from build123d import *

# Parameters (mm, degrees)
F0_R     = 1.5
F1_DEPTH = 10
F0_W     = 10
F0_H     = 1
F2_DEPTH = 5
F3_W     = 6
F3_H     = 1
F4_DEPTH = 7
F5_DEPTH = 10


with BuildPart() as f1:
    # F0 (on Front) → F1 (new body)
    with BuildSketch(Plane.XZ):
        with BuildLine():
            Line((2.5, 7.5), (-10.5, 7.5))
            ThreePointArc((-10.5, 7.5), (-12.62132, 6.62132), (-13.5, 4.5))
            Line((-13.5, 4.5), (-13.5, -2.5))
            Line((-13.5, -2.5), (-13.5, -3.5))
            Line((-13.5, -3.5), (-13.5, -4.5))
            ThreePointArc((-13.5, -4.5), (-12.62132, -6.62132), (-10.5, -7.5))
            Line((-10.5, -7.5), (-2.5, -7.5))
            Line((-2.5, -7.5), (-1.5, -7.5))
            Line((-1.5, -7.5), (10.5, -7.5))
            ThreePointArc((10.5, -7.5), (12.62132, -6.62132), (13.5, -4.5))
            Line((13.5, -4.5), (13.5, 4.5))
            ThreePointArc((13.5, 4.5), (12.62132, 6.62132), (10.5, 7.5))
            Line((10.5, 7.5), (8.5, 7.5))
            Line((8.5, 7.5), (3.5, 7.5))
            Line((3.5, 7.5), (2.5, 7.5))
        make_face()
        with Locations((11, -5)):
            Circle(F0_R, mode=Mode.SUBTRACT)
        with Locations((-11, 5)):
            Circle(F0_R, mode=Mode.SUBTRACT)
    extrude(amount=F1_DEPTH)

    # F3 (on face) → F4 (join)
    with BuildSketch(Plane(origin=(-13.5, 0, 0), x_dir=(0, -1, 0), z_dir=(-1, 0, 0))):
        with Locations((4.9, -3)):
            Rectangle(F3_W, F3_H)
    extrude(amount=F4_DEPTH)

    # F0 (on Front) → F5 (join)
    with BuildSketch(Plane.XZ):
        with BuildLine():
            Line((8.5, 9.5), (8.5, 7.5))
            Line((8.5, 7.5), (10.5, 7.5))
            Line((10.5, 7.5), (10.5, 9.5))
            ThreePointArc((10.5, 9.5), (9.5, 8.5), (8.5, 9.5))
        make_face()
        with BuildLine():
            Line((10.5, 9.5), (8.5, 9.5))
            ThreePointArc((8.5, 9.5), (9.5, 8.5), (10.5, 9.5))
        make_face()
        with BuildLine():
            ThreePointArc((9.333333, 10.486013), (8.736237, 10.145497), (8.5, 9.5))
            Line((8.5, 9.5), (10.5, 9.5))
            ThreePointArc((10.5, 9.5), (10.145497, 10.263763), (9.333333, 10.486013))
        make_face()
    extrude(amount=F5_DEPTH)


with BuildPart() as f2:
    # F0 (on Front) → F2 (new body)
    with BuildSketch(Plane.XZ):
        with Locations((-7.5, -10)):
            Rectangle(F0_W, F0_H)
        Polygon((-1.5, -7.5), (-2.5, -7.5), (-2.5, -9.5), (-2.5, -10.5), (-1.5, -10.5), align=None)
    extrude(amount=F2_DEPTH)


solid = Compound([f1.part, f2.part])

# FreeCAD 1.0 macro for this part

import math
import FreeCAD as App
import Part
import Sketcher

V = App.Vector
Q = App.Units.Quantity


def add_polygon(sketch, points):
    """Adds a closed chain of lines whose ends are joined by coincident constraints."""
    first, n = sketch.GeometryCount, len(points)
    for a, b in zip(points, points[1:] + points[:1]):
        sketch.addGeometry(Part.LineSegment(App.Vector(*a, 0), App.Vector(*b, 0)), False)
    for i in range(n):
        sketch.addConstraint(Sketcher.Constraint("Coincident", first + i, 2, first + (i + 1) % n, 1))

doc = App.newDocument("Part")
params = doc.addObject("Spreadsheet::Sheet", "Params")
for row, (alias, value) in enumerate([
    ("sketch1_diameter", "3 mm"),
    ("sketch1_radius", "3.000001 mm"),
    ("sketch1_width", "21 mm"),
    ("sketch1_height", "9 mm"),
    ("pad1_length", "10 mm"),
    ("sketch2_width", "6 mm"),
    ("sketch2_height", "1 mm"),
    ("pad2_length", "7 mm"),
    ("sketch3_radius", "0.999999 mm"),
    ("pad3_length", "10 mm"),
    ("sketch4_width", "11 mm"),
    ("sketch4_width2", "1 mm"),
    ("sketch4_height", "3 mm"),
    ("pad4_length", "5 mm"),
], start=1):
    params.set(f"A{row}", alias)
    params.set(f"B{row}", "=" + value)
    params.setAlias(f"B{row}", alias)

body = doc.addObject("PartDesign::Body", "Body")

sketch1 = doc.addObject("Sketcher::SketchObject", "Sketch")
body.addObject(sketch1)
sketch1.AttachmentSupport = (doc.XZ_Plane, [""])
sketch1.MapMode = "FlatFace"
sketch1.addGeometry(Part.ArcOfCircle(Part.Circle(V(-10.5, 4.5, 0), V(0, 0, 1), 3), math.radians(90), math.radians(180)), False)
sketch1.addGeometry(Part.LineSegment(V(-13.5, 4.5, 0), V(-13.5, -4.5, 0)), False)
sketch1.addGeometry(Part.ArcOfCircle(Part.Circle(V(-10.5, -4.5, 0), V(0, 0, 1), 3), math.radians(-180), math.radians(-90)), False)
sketch1.addGeometry(Part.LineSegment(V(-10.5, -7.5, 0), V(10.5, -7.5, 0)), False)
sketch1.addGeometry(Part.ArcOfCircle(Part.Circle(V(10.5, -4.5, 0), V(0, 0, 1), 3), math.radians(-90), math.radians(0)), False)
sketch1.addGeometry(Part.LineSegment(V(13.5, -4.5, 0), V(13.5, 4.5, 0)), False)
sketch1.addGeometry(Part.ArcOfCircle(Part.Circle(V(10.5, 4.5, 0), V(0, 0, 1), 3), math.radians(0), math.radians(90)), False)
sketch1.addGeometry(Part.LineSegment(V(10.5, 7.5, 0), V(-10.5, 7.5, 0)), False)
sketch1.addGeometry(Part.Circle(V(11, -5, 0), V(0, 0, 1), 1.5), False)
sketch1.addGeometry(Part.Circle(V(-11, 5, 0), V(0, 0, 1), 1.5), False)
sketch1.addConstraint(Sketcher.Constraint("Tangent", 0, 2, 1, 1))
sketch1.addConstraint(Sketcher.Constraint("Tangent", 1, 2, 2, 1))
sketch1.addConstraint(Sketcher.Constraint("Tangent", 2, 2, 3, 1))
sketch1.addConstraint(Sketcher.Constraint("Tangent", 3, 2, 4, 1))
sketch1.addConstraint(Sketcher.Constraint("Tangent", 4, 2, 5, 1))
sketch1.addConstraint(Sketcher.Constraint("Tangent", 5, 2, 6, 1))
sketch1.addConstraint(Sketcher.Constraint("Tangent", 6, 2, 7, 1))
sketch1.addConstraint(Sketcher.Constraint("Tangent", 7, 2, 0, 1))
sketch1.addConstraint(Sketcher.Constraint("Vertical", 1))
sketch1.addConstraint(Sketcher.Constraint("Horizontal", 3))
sketch1.addConstraint(Sketcher.Constraint("Vertical", 5))
sketch1.addConstraint(Sketcher.Constraint("Horizontal", 7))
sketch1.addConstraint(Sketcher.Constraint("Equal", 0, 2))
sketch1.addConstraint(Sketcher.Constraint("Equal", 2, 4))
sketch1.addConstraint(Sketcher.Constraint("Equal", 4, 6))
sketch1.addConstraint(Sketcher.Constraint("Equal", 8, 9))
sketch1.addConstraint(Sketcher.Constraint("Symmetric", 0, 3, 4, 3, -1, 1))
sketch1.addConstraint(Sketcher.Constraint("Symmetric", 8, 3, 9, 3, -1, 1))
sketch1.addConstraint(Sketcher.Constraint("Diameter", 8, Q("3 mm")))
sketch1.addConstraint(Sketcher.Constraint("Radius", 0, Q("3.000001 mm")))
sketch1.addConstraint(Sketcher.Constraint("DistanceX", 3, 1, 3, 2, Q("21 mm")))
sketch1.addConstraint(Sketcher.Constraint("DistanceY", 1, 2, 1, 1, Q("9 mm")))
sketch1.addConstraint(Sketcher.Constraint("DistanceX", -1, 1, 8, 3, Q("11 mm")))
sketch1.addConstraint(Sketcher.Constraint("DistanceY", 8, 3, -1, 1, Q("5 mm")))
sketch1.setExpression("Constraints[18]", "Params.sketch1_diameter")
sketch1.setExpression("Constraints[19]", "Params.sketch1_radius")
sketch1.setExpression("Constraints[20]", "Params.sketch1_width")
sketch1.setExpression("Constraints[21]", "Params.sketch1_height")
pad1 = doc.addObject("PartDesign::Pad", "Pad")
body.addObject(pad1)
pad1.Profile = sketch1
pad1.setExpression("Length", "Params.pad1_length")

sketch2 = doc.addObject("Sketcher::SketchObject", "Sketch001")
body.addObject(sketch2)
sketch2.AttachmentSupport = (doc.YZ_Plane, [""])
sketch2.MapMode = "FlatFace"
sketch2.AttachmentOffset = App.Placement(V(0, 0, -13.5), App.Rotation())
add_polygon(sketch2, [(-1.9, -2.5), (-1.9, -3.5), (-7.9, -3.5), (-7.9, -2.5)])
sketch2.addConstraint(Sketcher.Constraint("Vertical", 0))
sketch2.addConstraint(Sketcher.Constraint("Horizontal", 1))
sketch2.addConstraint(Sketcher.Constraint("Vertical", 2))
sketch2.addConstraint(Sketcher.Constraint("Horizontal", 3))
sketch2.addConstraint(Sketcher.Constraint("DistanceX", 1, 2, 1, 1, Q("6 mm")))
sketch2.addConstraint(Sketcher.Constraint("DistanceY", 0, 2, 0, 1, Q("1 mm")))
sketch2.addConstraint(Sketcher.Constraint("DistanceX", 0, 2, -1, 1, Q("1.9 mm")))
sketch2.addConstraint(Sketcher.Constraint("DistanceY", 0, 2, -1, 1, Q("3.5 mm")))
sketch2.setExpression("Constraints[8]", "Params.sketch2_width")
sketch2.setExpression("Constraints[9]", "Params.sketch2_height")
pad2 = doc.addObject("PartDesign::Pad", "Pad001")
body.addObject(pad2)
pad2.Profile = sketch2
pad2.setExpression("Length", "Params.pad2_length")
pad2.Reversed = True

sketch3 = doc.addObject("Sketcher::SketchObject", "Sketch002")
body.addObject(sketch3)
sketch3.AttachmentSupport = (doc.XZ_Plane, [""])
sketch3.MapMode = "FlatFace"
sketch3.addGeometry(Part.LineSegment(V(8.5, 9.5, 0), V(8.5, 7.5, 0)), False)
sketch3.addGeometry(Part.LineSegment(V(8.5, 7.5, 0), V(10.5, 7.5, 0)), False)
sketch3.addGeometry(Part.LineSegment(V(10.5, 7.5, 0), V(10.5, 9.5, 0)), False)
sketch3.addGeometry(Part.ArcOfCircle(Part.Circle(V(9.5, 9.5, 0), V(0, 0, 1), 1), math.radians(0), math.radians(100)), False)
sketch3.addGeometry(Part.ArcOfCircle(Part.Circle(V(9.5, 9.5, 0), V(0, 0, 1), 1), math.radians(100), math.radians(180)), False)
sketch3.addConstraint(Sketcher.Constraint("Coincident", 0, 2, 1, 1))
sketch3.addConstraint(Sketcher.Constraint("Coincident", 1, 2, 2, 1))
sketch3.addConstraint(Sketcher.Constraint("Tangent", 2, 2, 3, 1))
sketch3.addConstraint(Sketcher.Constraint("Tangent", 3, 2, 4, 1))
sketch3.addConstraint(Sketcher.Constraint("Tangent", 4, 2, 0, 1))
sketch3.addConstraint(Sketcher.Constraint("Vertical", 0))
sketch3.addConstraint(Sketcher.Constraint("Horizontal", 1))
sketch3.addConstraint(Sketcher.Constraint("Vertical", 2))
sketch3.addConstraint(Sketcher.Constraint("Equal", 3, 4))
sketch3.addConstraint(Sketcher.Constraint("Equal", 1, 0))
sketch3.addConstraint(Sketcher.Constraint("Radius", 3, Q("0.999999 mm")))
sketch3.addConstraint(Sketcher.Constraint("DistanceX", -1, 1, 3, 3, Q("9.500001 mm")))
sketch3.addConstraint(Sketcher.Constraint("DistanceY", -1, 1, 3, 3, Q("9.5 mm")))
sketch3.addConstraint(Sketcher.Constraint("DistanceX", -1, 1, 3, 2, Q("9.333333 mm")))
sketch3.setExpression("Constraints[10]", "Params.sketch3_radius")
pad3 = doc.addObject("PartDesign::Pad", "Pad002")
body.addObject(pad3)
pad3.Profile = sketch3
pad3.setExpression("Length", "Params.pad3_length")
body2 = doc.addObject("PartDesign::Body", "Body001")

sketch4 = doc.addObject("Sketcher::SketchObject", "Sketch003")
body2.addObject(sketch4)
sketch4.AttachmentSupport = (doc.getObject("XZ_Plane001"), [""])
sketch4.MapMode = "FlatFace"
add_polygon(sketch4, [(-12.5, -9.5), (-12.5, -10.5), (-1.5, -10.5), (-1.5, -7.5), (-2.5, -7.5), (-2.5, -9.5)])
sketch4.addConstraint(Sketcher.Constraint("Vertical", 0))
sketch4.addConstraint(Sketcher.Constraint("Horizontal", 1))
sketch4.addConstraint(Sketcher.Constraint("Vertical", 2))
sketch4.addConstraint(Sketcher.Constraint("Horizontal", 3))
sketch4.addConstraint(Sketcher.Constraint("Vertical", 4))
sketch4.addConstraint(Sketcher.Constraint("Horizontal", 5))
sketch4.addConstraint(Sketcher.Constraint("Equal", 3, 0))
sketch4.addConstraint(Sketcher.Constraint("DistanceX", 1, 1, 1, 2, Q("11 mm")))
sketch4.addConstraint(Sketcher.Constraint("DistanceX", 3, 2, 3, 1, Q("1 mm")))
sketch4.addConstraint(Sketcher.Constraint("DistanceY", 2, 1, 2, 2, Q("3 mm")))
sketch4.addConstraint(Sketcher.Constraint("DistanceX", 0, 2, -1, 1, Q("12.5 mm")))
sketch4.addConstraint(Sketcher.Constraint("DistanceY", 0, 2, -1, 1, Q("10.5 mm")))
sketch4.setExpression("Constraints[13]", "Params.sketch4_width")
sketch4.setExpression("Constraints[14]", "Params.sketch4_width2")
sketch4.setExpression("Constraints[15]", "Params.sketch4_height")
pad4 = doc.addObject("PartDesign::Pad", "Pad003")
body2.addObject(pad4)
pad4.Profile = sketch4
pad4.setExpression("Length", "Params.pad4_length")

doc.recompute()
